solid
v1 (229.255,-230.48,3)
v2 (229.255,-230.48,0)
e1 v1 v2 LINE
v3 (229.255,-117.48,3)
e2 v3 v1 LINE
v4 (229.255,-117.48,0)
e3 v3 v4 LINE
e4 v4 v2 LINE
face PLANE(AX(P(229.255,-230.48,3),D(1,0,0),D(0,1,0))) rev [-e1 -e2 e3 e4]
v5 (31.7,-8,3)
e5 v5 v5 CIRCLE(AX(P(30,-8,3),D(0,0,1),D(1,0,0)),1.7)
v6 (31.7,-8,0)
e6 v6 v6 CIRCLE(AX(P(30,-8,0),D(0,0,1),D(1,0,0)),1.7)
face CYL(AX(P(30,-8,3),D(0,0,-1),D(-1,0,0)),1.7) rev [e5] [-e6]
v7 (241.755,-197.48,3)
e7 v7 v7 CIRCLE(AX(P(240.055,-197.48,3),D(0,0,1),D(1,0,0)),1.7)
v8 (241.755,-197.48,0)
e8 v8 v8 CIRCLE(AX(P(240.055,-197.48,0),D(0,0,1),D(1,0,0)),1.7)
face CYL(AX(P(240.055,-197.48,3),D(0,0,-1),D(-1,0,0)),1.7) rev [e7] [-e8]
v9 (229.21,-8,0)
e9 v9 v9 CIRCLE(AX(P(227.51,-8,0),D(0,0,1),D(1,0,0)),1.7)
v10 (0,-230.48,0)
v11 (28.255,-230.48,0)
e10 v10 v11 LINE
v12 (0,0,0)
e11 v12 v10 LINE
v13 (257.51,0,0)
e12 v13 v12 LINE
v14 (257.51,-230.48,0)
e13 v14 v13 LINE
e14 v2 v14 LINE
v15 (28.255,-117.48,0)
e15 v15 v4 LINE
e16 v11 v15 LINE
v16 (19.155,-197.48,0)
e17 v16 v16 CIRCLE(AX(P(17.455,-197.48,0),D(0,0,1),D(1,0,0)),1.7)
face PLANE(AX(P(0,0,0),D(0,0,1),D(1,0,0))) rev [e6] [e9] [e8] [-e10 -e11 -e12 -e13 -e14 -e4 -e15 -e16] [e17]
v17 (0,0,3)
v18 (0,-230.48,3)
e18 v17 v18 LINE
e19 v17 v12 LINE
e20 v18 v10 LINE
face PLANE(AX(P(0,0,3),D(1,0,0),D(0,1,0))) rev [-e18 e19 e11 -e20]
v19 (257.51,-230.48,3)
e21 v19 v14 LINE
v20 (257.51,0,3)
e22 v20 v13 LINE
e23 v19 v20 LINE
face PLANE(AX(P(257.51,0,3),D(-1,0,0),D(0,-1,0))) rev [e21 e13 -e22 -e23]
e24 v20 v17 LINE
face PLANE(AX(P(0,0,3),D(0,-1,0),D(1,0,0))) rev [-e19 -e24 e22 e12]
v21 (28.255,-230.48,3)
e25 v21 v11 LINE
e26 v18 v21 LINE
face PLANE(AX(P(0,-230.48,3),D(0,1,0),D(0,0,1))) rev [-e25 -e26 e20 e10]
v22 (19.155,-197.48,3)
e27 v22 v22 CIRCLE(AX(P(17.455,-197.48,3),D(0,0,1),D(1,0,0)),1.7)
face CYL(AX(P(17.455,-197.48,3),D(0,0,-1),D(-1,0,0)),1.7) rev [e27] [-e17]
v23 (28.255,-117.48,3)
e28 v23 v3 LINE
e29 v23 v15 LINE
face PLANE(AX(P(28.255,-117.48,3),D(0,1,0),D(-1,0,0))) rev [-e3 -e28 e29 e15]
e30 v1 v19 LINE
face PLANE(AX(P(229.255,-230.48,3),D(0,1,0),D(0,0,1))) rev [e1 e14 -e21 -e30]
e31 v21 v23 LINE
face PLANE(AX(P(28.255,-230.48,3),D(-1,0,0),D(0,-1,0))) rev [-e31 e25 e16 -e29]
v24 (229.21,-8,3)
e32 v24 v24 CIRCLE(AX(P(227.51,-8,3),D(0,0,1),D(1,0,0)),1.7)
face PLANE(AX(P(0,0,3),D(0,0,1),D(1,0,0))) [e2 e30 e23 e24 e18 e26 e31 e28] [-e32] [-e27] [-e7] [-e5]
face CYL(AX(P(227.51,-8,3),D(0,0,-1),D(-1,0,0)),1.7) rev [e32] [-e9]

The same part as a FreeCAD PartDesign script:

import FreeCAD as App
import Part
import Sketcher

V = App.Vector
Q = App.Units.Quantity

doc = App.newDocument("Part")
params = doc.addObject("Spreadsheet::Sheet", "Params")
for row, (alias, value) in enumerate([
    ("sketch1_diameter", "3.4 mm"),
    ("sketch1_width", "201 mm"),
    ("sketch1_height", "113 mm"),
    ("sketch1_width2", "257.51 mm"),
    ("sketch1_height2", "230.48 mm"),
    ("pad1_length", "3 mm"),
], start=1):
    params.set(f"A{row}", alias)
    params.set(f"B{row}", "=" + value)
    params.setAlias(f"B{row}", alias)

body = doc.addObject("PartDesign::Body", "Body")

# Sketch on XY plane
sketch1 = body.newObject("Sketcher::SketchObject", "Sketch")
sketch1.AttachmentSupport = (doc.getObject("XY_Plane"), [""])
sketch1.MapMode = "FlatFace"
sketch1.addGeometry([
    Part.LineSegment(V(229.3, -230.5, 0), V(257.5, -230.5, 0)),  # 0
    Part.LineSegment(V(257.5, -230.5, 0), V(257.5, 0, 0)),  # 1
    Part.LineSegment(V(257.5, 0, 0), V(0, 0, 0)),  # 2
    Part.LineSegment(V(0, 0, 0), V(0, -230.5, 0)),  # 3
    Part.LineSegment(V(0, -230.5, 0), V(28.3, -230.5, 0)),  # 4
    Part.LineSegment(V(28.3, -230.5, 0), V(28.3, -117.5, 0)),  # 5
    Part.LineSegment(V(28.3, -117.5, 0), V(229.3, -117.5, 0)),  # 6
    Part.LineSegment(V(229.3, -117.5, 0), V(229.3, -230.5, 0)),  # 7
    Part.Circle(V(17.5, -197.5, 0), V(0, 0, 1), 1.7),  # 8
    Part.Circle(V(240.1, -197.5, 0), V(0, 0, 1), 1.7),  # 9
    Part.Circle(V(30, -8, 0), V(0, 0, 1), 1.7),  # 10
    Part.Circle(V(227.5, -8, 0), V(0, 0, 1), 1.7),  # 11
], False)
sketch1.addConstraint([
    Sketcher.Constraint("Coincident", 0, 2, 1, 1),
    Sketcher.Constraint("Coincident", 1, 2, 2, 1),
    Sketcher.Constraint("Coincident", 2, 2, 3, 1),
    Sketcher.Constraint("Coincident", 3, 2, 4, 1),
    Sketcher.Constraint("Coincident", 4, 2, 5, 1),
    Sketcher.Constraint("Coincident", 5, 2, 6, 1),
    Sketcher.Constraint("Coincident", 6, 2, 7, 1),
    Sketcher.Constraint("Coincident", 7, 2, 0, 1),
    Sketcher.Constraint("Horizontal", 0),
    Sketcher.Constraint("Vertical", 1),
    Sketcher.Constraint("Horizontal", 2),
    Sketcher.Constraint("Vertical", 3),
    Sketcher.Constraint("Horizontal", 4),
    Sketcher.Constraint("Vertical", 5),
    Sketcher.Constraint("Horizontal", 6),
    Sketcher.Constraint("Vertical", 7),
    Sketcher.Constraint("Coincident", 2, 2, -1, 1),
    Sketcher.Constraint("Equal", 8, 9),
    Sketcher.Constraint("Equal", 9, 10),
    Sketcher.Constraint("Equal", 10, 11),
    Sketcher.Constraint("Horizontal", 8, 3, 9, 3),
    Sketcher.Constraint("Horizontal", 10, 3, 11, 3),
    Sketcher.Constraint("Horizontal", 0, 2, 3, 2),
    Sketcher.Constraint("Equal", 0, 4),
    Sketcher.Constraint("Diameter", 8, Q("3.4 mm")),
    Sketcher.Constraint("DistanceX", 6, 1, 6, 2, Q("201 mm")),
    Sketcher.Constraint("DistanceY", 5, 1, 5, 2, Q("113 mm")),
    Sketcher.Constraint("DistanceX", -1, 1, 10, 3, Q("30 mm")),
    Sketcher.Constraint("DistanceY", 10, 3, -1, 1, Q("8 mm")),
    Sketcher.Constraint("DistanceY", 0, 2, 9, 3, Q("33 mm")),
    Sketcher.Constraint("DistanceX", 11, 3, 0, 2, Q("30 mm")),
    Sketcher.Constraint("DistanceX", 2, 2, 2, 1, Q("257.51 mm")),
    Sketcher.Constraint("DistanceY", 1, 1, 1, 2, Q("230.48 mm")),
    Sketcher.Constraint("DistanceX", 8, 3, 9, 3, Q("222.6 mm")),
    Sketcher.Constraint("DistanceX", 8, 3, 4, 2, Q("10.8 mm")),
])
sketch1.setExpression("Constraints[24]", "Params.sketch1_diameter")
sketch1.setExpression("Constraints[25]", "Params.sketch1_width")
sketch1.setExpression("Constraints[26]", "Params.sketch1_height")
sketch1.setExpression("Constraints[31]", "Params.sketch1_width2")
sketch1.setExpression("Constraints[32]", "Params.sketch1_height2")
pad1 = body.newObject("PartDesign::Pad", "Pad")
pad1.Profile = sketch1
pad1.setExpression("Length", "Params.pad1_length")

doc.recompute()
